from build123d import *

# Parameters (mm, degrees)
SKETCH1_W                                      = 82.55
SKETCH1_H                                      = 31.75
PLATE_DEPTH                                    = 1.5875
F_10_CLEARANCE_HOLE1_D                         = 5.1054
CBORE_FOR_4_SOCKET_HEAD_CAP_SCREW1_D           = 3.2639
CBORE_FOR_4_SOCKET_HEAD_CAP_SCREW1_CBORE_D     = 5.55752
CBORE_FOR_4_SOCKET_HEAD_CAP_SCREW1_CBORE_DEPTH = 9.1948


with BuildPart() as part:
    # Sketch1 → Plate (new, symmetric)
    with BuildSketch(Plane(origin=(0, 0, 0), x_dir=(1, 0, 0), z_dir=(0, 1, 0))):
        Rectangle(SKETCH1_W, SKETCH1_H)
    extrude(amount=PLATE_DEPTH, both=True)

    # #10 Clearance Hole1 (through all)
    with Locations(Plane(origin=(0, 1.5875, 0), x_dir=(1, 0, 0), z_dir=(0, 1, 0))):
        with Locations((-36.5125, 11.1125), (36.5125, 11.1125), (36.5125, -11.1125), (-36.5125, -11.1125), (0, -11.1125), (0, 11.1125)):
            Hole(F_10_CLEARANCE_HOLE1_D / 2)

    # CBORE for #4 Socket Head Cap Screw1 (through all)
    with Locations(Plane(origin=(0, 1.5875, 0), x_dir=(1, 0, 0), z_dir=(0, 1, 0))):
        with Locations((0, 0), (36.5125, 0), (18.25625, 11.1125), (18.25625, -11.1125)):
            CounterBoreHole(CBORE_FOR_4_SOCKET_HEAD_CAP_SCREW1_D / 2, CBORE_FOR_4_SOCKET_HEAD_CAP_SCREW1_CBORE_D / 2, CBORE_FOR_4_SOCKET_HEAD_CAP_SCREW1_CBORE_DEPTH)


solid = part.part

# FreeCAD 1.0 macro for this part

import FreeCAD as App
import Part
import Sketcher
Q = App.Units.Quantity


def add_polygon(sketch, points):
    """Adds a closed chain of lines whose ends are joined by coincident constraints."""
    first, n = sketch.GeometryCount, len(points)
    for a, b in zip(points, points[1:] + points[:1]):
        sketch.addGeometry(Part.LineSegment(App.Vector(*a, 0), App.Vector(*b, 0)), False)
    for i in range(n):
        sketch.addConstraint(Sketcher.Constraint("Coincident", first + i, 2, first + (i + 1) % n, 1))

doc = App.newDocument("Part")
body = doc.addObject("PartDesign::Body", "Body")

# Sketch on XZ plane
sketch1 = body.newObject("Sketcher::SketchObject", "Sketch")
sketch1.AttachmentSupport = (doc.getObject("XZ_Plane"), [""])
sketch1.MapMode = "FlatFace"
add_polygon(sketch1, [(-41.275, -15.875), (-41.275, 15.875), (41.275, 15.875), (41.275, -15.875)])  # lines 0-3
sketch1.addConstraint([
    Sketcher.Constraint("Vertical", 0),
    Sketcher.Constraint("Horizontal", 1),
    Sketcher.Constraint("Vertical", 2),
    Sketcher.Constraint("Horizontal", 3),
    Sketcher.Constraint("Symmetric", 0, 2, 2, 2, -1, 1),
    Sketcher.Constraint("DistanceX", 1, 1, 1, 2, Q("3.25 in")),
    Sketcher.Constraint("DistanceY", 0, 1, 0, 2, Q("1.25 in")),
])
pad1 = body.newObject("PartDesign::Pad", "Pad")
pad1.Profile = sketch1
pad1.Length = Q("0.125 in")
pad1.Midplane = True

# Sketch on XZ plane
sketch2 = body.newObject("Sketcher::SketchObject", "Sketch001")
sketch2.AttachmentSupport = (doc.getObject("XZ_Plane"), [""])
sketch2.MapMode = "FlatFace"
sketch2.AttachmentOffset = App.Placement(App.Vector(0, 0, -0.0625 * 25.4), App.Rotation())
sketch2.addGeometry([
    Part.Circle(App.Vector(-36.5125, -11.1125, 0), App.Vector(0, 0, 1), 2.5527),  # 0
    Part.Circle(App.Vector(36.5125, -11.1125, 0), App.Vector(0, 0, 1), 2.5527),  # 1
    Part.Circle(App.Vector(36.5125, 11.1125, 0), App.Vector(0, 0, 1), 2.5527),  # 2
    Part.Circle(App.Vector(-36.5125, 11.1125, 0), App.Vector(0, 0, 1), 2.5527),  # 3
    Part.Circle(App.Vector(0, 11.1125, 0), App.Vector(0, 0, 1), 2.5527),  # 4
    Part.Circle(App.Vector(0, -11.1125, 0), App.Vector(0, 0, 1), 2.5527),  # 5
], False)
sketch2.addConstraint([
    Sketcher.Constraint("Equal", 0, 1),
    Sketcher.Constraint("Equal", 1, 2),
    Sketcher.Constraint("Equal", 2, 3),
    Sketcher.Constraint("Equal", 3, 4),
    Sketcher.Constraint("Equal", 4, 5),
    Sketcher.Constraint("Symmetric", 0, 3, 2, 3, -1, 1),
    Sketcher.Constraint("Symmetric", 1, 3, 3, 3, -1, 1),
    Sketcher.Constraint("Symmetric", 4, 3, 5, 3, -1, 1),
    Sketcher.Constraint("Symmetric", 0, 3, 1, 3, -2),
    Sketcher.Constraint("PointOnObject", 4, 3, -2),
    Sketcher.Constraint("Horizontal", 3, 3, 4, 3),
    Sketcher.Constraint("Diameter", 0, Q("0.201 in")),
    Sketcher.Constraint("DistanceX", 0, 3, -1, 1, Q("1.4375 in")),
    Sketcher.Constraint("DistanceY", 0, 3, -1, 1, Q("0.4375 in")),
])
doc.recompute()
hole = body.newObject("PartDesign::Hole", "Hole")
hole.Profile = sketch2
hole.ThreadType = "None"
hole.Diameter = Q("0.201 in")
hole.DepthType = "ThroughAll"
hole.Reversed = True

# Sketch on XZ plane
sketch3 = body.newObject("Sketcher::SketchObject", "Sketch002")
sketch3.AttachmentSupport = (doc.getObject("XZ_Plane"), [""])
sketch3.MapMode = "FlatFace"
sketch3.AttachmentOffset = App.Placement(App.Vector(0, 0, -0.0625 * 25.4), App.Rotation())
sketch3.addGeometry([
    Part.Circle(App.Vector(0, 0, 0), App.Vector(0, 0, 1), 1.63195),
    Part.Circle(App.Vector(36.5125, 0, 0), App.Vector(0, 0, 1), 1.63195),
    Part.Circle(App.Vector(18.25625, -11.1125, 0), App.Vector(0, 0, 1), 1.63195),
    Part.Circle(App.Vector(18.25625, 11.1125, 0), App.Vector(0, 0, 1), 1.63195),
], False)
sketch3.addConstraint([
    Sketcher.Constraint("Coincident", 0, 3, -1, 1),
    Sketcher.Constraint("Equal", 0, 1),
    Sketcher.Constraint("Equal", 1, 2),
    Sketcher.Constraint("Equal", 2, 3),
    Sketcher.Constraint("Symmetric", 2, 3, 3, 3, -1),
    Sketcher.Constraint("PointOnObject", 1, 3, -1),
    Sketcher.Constraint("Diameter", 0, Q("0.1285 in")),
    Sketcher.Constraint("DistanceX", -1, 1, 1, 3, Q("1.4375 in")),
    Sketcher.Constraint("DistanceX", -1, 1, 2, 3, Q("0.71875 in")),
    Sketcher.Constraint("DistanceY", 2, 3, -1, 1, Q("0.4375 in")),
])
doc.recompute()
hole2 = body.newObject("PartDesign::Hole", "Hole001")
hole2.Profile = sketch3
hole2.ThreadType = "None"
hole2.Diameter = Q("0.1285 in")
hole2.DepthType = "ThroughAll"
hole2.HoleCutType = "Counterbore"
hole2.HoleCutDiameter = Q("0.2188 in")
hole2.HoleCutDepth = Q("0.362 in")
hole2.Reversed = True

doc.recompute()
